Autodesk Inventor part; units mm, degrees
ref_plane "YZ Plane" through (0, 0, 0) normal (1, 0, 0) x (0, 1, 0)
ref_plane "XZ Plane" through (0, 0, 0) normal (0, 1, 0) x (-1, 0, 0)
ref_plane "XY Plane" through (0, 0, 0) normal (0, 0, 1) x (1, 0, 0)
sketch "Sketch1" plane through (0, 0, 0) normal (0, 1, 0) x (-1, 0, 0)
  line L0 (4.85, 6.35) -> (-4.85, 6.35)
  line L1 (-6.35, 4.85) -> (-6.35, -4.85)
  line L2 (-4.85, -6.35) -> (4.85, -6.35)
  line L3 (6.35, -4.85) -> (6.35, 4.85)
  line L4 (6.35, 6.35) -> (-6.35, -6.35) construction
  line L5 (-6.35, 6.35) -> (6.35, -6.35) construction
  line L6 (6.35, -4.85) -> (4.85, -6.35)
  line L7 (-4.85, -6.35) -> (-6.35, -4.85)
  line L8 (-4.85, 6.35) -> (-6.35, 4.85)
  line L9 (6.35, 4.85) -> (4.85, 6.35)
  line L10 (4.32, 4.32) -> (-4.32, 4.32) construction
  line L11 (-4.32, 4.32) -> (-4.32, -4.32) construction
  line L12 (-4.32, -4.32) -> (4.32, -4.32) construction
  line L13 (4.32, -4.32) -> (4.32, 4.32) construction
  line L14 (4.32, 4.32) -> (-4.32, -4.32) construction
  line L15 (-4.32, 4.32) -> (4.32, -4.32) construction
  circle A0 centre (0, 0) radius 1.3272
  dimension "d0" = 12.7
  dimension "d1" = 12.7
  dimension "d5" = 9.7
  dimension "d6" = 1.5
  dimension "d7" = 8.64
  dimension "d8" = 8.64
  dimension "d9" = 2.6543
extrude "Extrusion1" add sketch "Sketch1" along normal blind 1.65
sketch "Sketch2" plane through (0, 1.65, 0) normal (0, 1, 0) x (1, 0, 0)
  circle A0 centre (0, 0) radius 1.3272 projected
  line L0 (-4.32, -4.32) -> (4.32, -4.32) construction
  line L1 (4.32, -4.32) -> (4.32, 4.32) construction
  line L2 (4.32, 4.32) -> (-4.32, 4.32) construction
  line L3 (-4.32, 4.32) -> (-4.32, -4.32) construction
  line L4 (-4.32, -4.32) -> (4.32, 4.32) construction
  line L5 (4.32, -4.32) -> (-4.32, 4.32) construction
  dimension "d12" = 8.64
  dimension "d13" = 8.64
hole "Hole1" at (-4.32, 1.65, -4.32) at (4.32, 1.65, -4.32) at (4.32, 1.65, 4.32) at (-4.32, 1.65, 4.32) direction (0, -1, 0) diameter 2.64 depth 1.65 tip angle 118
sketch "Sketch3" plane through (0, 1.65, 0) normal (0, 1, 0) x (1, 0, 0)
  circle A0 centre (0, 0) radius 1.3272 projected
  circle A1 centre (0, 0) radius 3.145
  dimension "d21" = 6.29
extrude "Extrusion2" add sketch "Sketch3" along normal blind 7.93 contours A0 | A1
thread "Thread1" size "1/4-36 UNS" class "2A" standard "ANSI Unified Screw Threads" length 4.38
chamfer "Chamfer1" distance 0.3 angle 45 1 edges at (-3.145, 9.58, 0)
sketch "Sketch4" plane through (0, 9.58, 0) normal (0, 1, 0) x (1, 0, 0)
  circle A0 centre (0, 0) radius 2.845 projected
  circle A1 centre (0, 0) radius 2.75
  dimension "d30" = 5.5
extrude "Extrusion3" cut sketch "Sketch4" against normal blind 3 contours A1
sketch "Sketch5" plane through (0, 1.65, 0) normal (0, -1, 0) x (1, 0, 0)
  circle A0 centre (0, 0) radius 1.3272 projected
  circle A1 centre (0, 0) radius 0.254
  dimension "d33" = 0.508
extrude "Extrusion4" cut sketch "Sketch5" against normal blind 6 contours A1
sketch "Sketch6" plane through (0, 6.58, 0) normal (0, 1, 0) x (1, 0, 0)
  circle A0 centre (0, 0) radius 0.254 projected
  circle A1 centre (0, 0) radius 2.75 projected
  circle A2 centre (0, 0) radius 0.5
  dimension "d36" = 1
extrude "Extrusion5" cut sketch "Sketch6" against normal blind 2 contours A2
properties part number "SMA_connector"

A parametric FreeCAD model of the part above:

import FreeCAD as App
import Part
import Sketcher
from FreeCAD import Vector


def edges_at(feature, points):
    """Names of the edges that pass closest to the given points."""
    edges = feature.Shape.Edges
    near = lambda p: min(range(len(edges)), key=lambda i: edges[i].distToShape(Part.Vertex(*p))[0])
    return sorted({f"Edge{near(p) + 1}" for p in points})


def add_polygon(sketch, points):
    """Adds a closed chain of lines whose ends are joined by coincident constraints."""
    first, n = sketch.GeometryCount, len(points)
    for a, b in zip(points, points[1:] + points[:1]):
        sketch.addGeometry(Part.LineSegment(App.Vector(*a, 0), App.Vector(*b, 0)), False)
    for i in range(n):
        sketch.addConstraint(Sketcher.Constraint("Coincident", first + i, 2, first + (i + 1) % n, 1))

doc = App.newDocument("Part")
body = doc.addObject("PartDesign::Body", "Body")

# Sketch on XZ plane
sketch1 = body.newObject("Sketcher::SketchObject", "Sketch")
sketch1.AttachmentSupport = (doc.getObject("XZ_Plane"), [""])
sketch1.MapMode = "FlatFace"
add_polygon(sketch1, [(-6.3, 4.8), (-4.8, 6.3), (4.8, 6.3), (6.3, 4.8), (6.3, -4.8), (4.8, -6.3), (-4.8, -6.3), (-6.3, -4.8)])  # lines 0-7
sketch1.addGeometry(Part.Circle(Vector(0, 0, 0), Vector(0, 0, 1), 1.3), False)  # 8
sketch1.addConstraint(Sketcher.Constraint("Horizontal", 1))
sketch1.addConstraint(Sketcher.Constraint("Vertical", 3))
sketch1.addConstraint(Sketcher.Constraint("Horizontal", 5))
sketch1.addConstraint(Sketcher.Constraint("Vertical", 7))
sketch1.addConstraint(Sketcher.Constraint("Coincident", 8, 3, -1, 1))
sketch1.addConstraint(Sketcher.Constraint("Symmetric", 0, 2, 4, 2, -1, 1))
sketch1.addConstraint(Sketcher.Constraint("Symmetric", 2, 2, 6, 2, -1, 1))
sketch1.addConstraint(Sketcher.Constraint("Perpendicular", 0, 2))
sketch1.addConstraint(Sketcher.Constraint("Perpendicular", 2, 4))
sketch1.addConstraint(Sketcher.Constraint("Perpendicular", 4, 6))
sketch1.addConstraint(Sketcher.Constraint("Horizontal", 3, 2, 6, 2))
sketch1.addConstraint(Sketcher.Constraint("Vertical", 1, 2, 4, 2))
sketch1.addConstraint(Sketcher.Constraint("Equal", 5, 3))
sketch1.addConstraint(Sketcher.Constraint("DistanceX", 1, 1, 1, 2, 9.7))
sketch1.addConstraint(Sketcher.Constraint("Diameter", 8, 2.6544))
sketch1.addConstraint(Sketcher.Constraint("DistanceX", 1, 2, 2, 2, 1.5))
pad1 = body.newObject("PartDesign::Pad", "Pad")
pad1.Profile = sketch1
pad1.Length = 1.65
pad1.Reversed = True

# Sketch on XZ plane
sketch2 = body.newObject("Sketcher::SketchObject", "Sketch001")
sketch2.AttachmentSupport = (doc.getObject("XZ_Plane"), [""])
sketch2.MapMode = "FlatFace"
sketch2.AttachmentOffset = App.Placement(Vector(0, 0, -1.65), App.Rotation())
sketch2.addGeometry(Part.Circle(Vector(-4.3, -4.3, 0), Vector(0, 0, 1), 1.3), False)
sketch2.addGeometry(Part.Circle(Vector(4.3, -4.3, 0), Vector(0, 0, 1), 1.3), False)
sketch2.addGeometry(Part.Circle(Vector(4.3, 4.3, 0), Vector(0, 0, 1), 1.3), False)
sketch2.addGeometry(Part.Circle(Vector(-4.3, 4.3, 0), Vector(0, 0, 1), 1.3), False)
sketch2.addConstraint(Sketcher.Constraint("Equal", 0, 1))
sketch2.addConstraint(Sketcher.Constraint("Equal", 1, 2))
sketch2.addConstraint(Sketcher.Constraint("Equal", 2, 3))
sketch2.addConstraint(Sketcher.Constraint("Symmetric", 0, 3, 2, 3, -1, 1))
sketch2.addConstraint(Sketcher.Constraint("Symmetric", 1, 3, 3, 3, -1, 1))
sketch2.addConstraint(Sketcher.Constraint("Symmetric", 0, 3, 1, 3, -2))
sketch2.addConstraint(Sketcher.Constraint("Diameter", 0, 2.64))
sketch2.addConstraint(Sketcher.Constraint("DistanceX", 0, 3, -1, 1, 4.32))
sketch2.addConstraint(Sketcher.Constraint("DistanceY", 0, 3, -1, 1, 4.32))
doc.recompute()
hole = body.newObject("PartDesign::Hole", "Hole")
hole.Profile = sketch2
hole.ThreadType = "None"
hole.Diameter = 2.64
hole.DepthType = "Dimension"
hole.Depth = 1.65
hole.DrillPoint = "Angled"
hole.DrillPointAngle = 118
hole.Reversed = True

# Sketch on XZ plane
sketch3 = body.newObject("Sketcher::SketchObject", "Sketch002")
sketch3.AttachmentSupport = (doc.getObject("XZ_Plane"), [""])
sketch3.MapMode = "FlatFace"
sketch3.AttachmentOffset = App.Placement(Vector(0, 0, -1.65), App.Rotation())
sketch3.addGeometry(Part.Circle(Vector(0, 0, 0), Vector(0, 0, 1), 3.1), False)
sketch3.addConstraint(Sketcher.Constraint("Coincident", 0, 3, -1, 1))
sketch3.addConstraint(Sketcher.Constraint("Diameter", 0, 6.29))
pad2 = body.newObject("PartDesign::Pad", "Pad001")
pad2.Profile = sketch3
pad2.Length = 7.93
pad2.Reversed = True
doc.recompute()

chamfer = body.newObject("PartDesign::Chamfer", "Chamfer")
chamfer.Base = (pad2, edges_at(pad2, [(-3.145, 9.58, 0)]))
chamfer.Size = 0.3

# Sketch on XZ plane
sketch4 = body.newObject("Sketcher::SketchObject", "Sketch003")
sketch4.AttachmentSupport = (doc.getObject("XZ_Plane"), [""])
sketch4.MapMode = "FlatFace"
sketch4.AttachmentOffset = App.Placement(Vector(0, 0, -9.58), App.Rotation())
sketch4.addGeometry(Part.Circle(Vector(0, 0, 0), Vector(0, 0, 1), 2.8), False)
sketch4.addConstraint(Sketcher.Constraint("Coincident", 0, 3, -1, 1))
sketch4.addConstraint(Sketcher.Constraint("Diameter", 0, 5.5))
pocket1 = body.newObject("PartDesign::Pocket", "Pocket")
pocket1.Profile = sketch4
pocket1.Length = 3
pocket1.Reversed = True

# Sketch on XZ plane
sketch5 = body.newObject("Sketcher::SketchObject", "Sketch004")
sketch5.AttachmentSupport = (doc.getObject("XZ_Plane"), [""])
sketch5.MapMode = "FlatFace"
sketch5.AttachmentOffset = App.Placement(Vector(0, 0, -1.65), App.Rotation())
sketch5.addGeometry(Part.Circle(Vector(0, 0, 0), Vector(0, 0, 1), 0.25), False)
sketch5.addConstraint(Sketcher.Constraint("Coincident", 0, 3, -1, 1))
sketch5.addConstraint(Sketcher.Constraint("Diameter", 0, 0.508))
pocket2 = body.newObject("PartDesign::Pocket", "Pocket001")
pocket2.Profile = sketch5
pocket2.Length = 6

# Sketch on XZ plane
sketch6 = body.newObject("Sketcher::SketchObject", "Sketch005")
sketch6.AttachmentSupport = (doc.getObject("XZ_Plane"), [""])
sketch6.MapMode = "FlatFace"
sketch6.AttachmentOffset = App.Placement(Vector(0, 0, -6.58), App.Rotation())
sketch6.addGeometry(Part.Circle(Vector(0, 0, 0), Vector(0, 0, 1), 0.5), False)
sketch6.addGeometry(Part.Circle(Vector(0, 0, 0), Vector(0, 0, 1), 0.25), False)
sketch6.addConstraint(Sketcher.Constraint("Coincident", 0, 3, -1, 1))
sketch6.addConstraint(Sketcher.Constraint("Coincident", 1, 3, -1, 1))
sketch6.addConstraint(Sketcher.Constraint("Diameter", 0, 1.0))
sketch6.addConstraint(Sketcher.Constraint("Diameter", 1, 0.508))
pocket3 = body.newObject("PartDesign::Pocket", "Pocket002")
pocket3.Profile = sketch6
pocket3.Length = 2
pocket3.Reversed = True

doc.recompute()
